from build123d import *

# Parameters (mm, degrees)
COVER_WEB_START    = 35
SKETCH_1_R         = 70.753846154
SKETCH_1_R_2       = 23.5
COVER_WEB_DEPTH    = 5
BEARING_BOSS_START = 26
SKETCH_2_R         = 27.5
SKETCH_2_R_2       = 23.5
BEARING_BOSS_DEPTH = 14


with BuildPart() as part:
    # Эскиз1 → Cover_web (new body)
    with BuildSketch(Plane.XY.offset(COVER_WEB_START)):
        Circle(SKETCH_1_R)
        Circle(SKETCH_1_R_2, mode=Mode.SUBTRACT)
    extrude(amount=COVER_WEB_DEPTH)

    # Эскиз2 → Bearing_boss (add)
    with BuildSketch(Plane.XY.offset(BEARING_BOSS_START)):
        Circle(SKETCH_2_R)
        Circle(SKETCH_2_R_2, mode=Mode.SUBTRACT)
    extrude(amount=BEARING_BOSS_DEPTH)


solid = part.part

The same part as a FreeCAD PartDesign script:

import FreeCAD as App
import Part
import Sketcher
Q = App.Units.Quantity

doc = App.newDocument("Part")
body = doc.addObject("PartDesign::Body", "Body")

# Sketch on XY plane
sketch1 = body.newObject("Sketcher::SketchObject", "Sketch")
sketch1.AttachmentSupport = (doc.getObject("XY_Plane"), [""])
sketch1.MapMode = "FlatFace"
sketch1.AttachmentOffset = App.Placement(App.Vector(0, 0, 35), App.Rotation())
sketch1.addGeometry([
    Part.Circle(App.Vector(0, 0, 0), App.Vector(0, 0, 1), 70.753846),
    Part.Circle(App.Vector(0, 0, 0), App.Vector(0, 0, 1), 23.5),
], False)
sketch1.addConstraint([
    Sketcher.Constraint("Coincident", 0, 3, -1, 1),
    Sketcher.Constraint("Coincident", 1, 3, -1, 1),
    Sketcher.Constraint("Diameter", 1, Q("47 mm")),
    Sketcher.Constraint("Diameter", 0, Q("141.507692 mm")),
])
pad1 = body.newObject("PartDesign::Pad", "Pad")
pad1.Profile = sketch1
pad1.Length = 5

# Sketch on XY plane
sketch2 = body.newObject("Sketcher::SketchObject", "Sketch001")
sketch2.AttachmentSupport = (doc.getObject("XY_Plane"), [""])
sketch2.MapMode = "FlatFace"
sketch2.AttachmentOffset = App.Placement(App.Vector(0, 0, 26), App.Rotation())
sketch2.addGeometry([
    Part.Circle(App.Vector(0, 0, 0), App.Vector(0, 0, 1), 27.5),
    Part.Circle(App.Vector(0, 0, 0), App.Vector(0, 0, 1), 23.5),
], False)
sketch2.addConstraint([
    Sketcher.Constraint("Coincident", 0, 3, -1, 1),
    Sketcher.Constraint("Coincident", 1, 3, -1, 1),
    Sketcher.Constraint("Diameter", 0, Q("55 mm")),
    Sketcher.Constraint("Diameter", 1, Q("47 mm")),
])
pad2 = body.newObject("PartDesign::Pad", "Pad001")
pad2.Profile = sketch2
pad2.Length = 14

doc.recompute()
